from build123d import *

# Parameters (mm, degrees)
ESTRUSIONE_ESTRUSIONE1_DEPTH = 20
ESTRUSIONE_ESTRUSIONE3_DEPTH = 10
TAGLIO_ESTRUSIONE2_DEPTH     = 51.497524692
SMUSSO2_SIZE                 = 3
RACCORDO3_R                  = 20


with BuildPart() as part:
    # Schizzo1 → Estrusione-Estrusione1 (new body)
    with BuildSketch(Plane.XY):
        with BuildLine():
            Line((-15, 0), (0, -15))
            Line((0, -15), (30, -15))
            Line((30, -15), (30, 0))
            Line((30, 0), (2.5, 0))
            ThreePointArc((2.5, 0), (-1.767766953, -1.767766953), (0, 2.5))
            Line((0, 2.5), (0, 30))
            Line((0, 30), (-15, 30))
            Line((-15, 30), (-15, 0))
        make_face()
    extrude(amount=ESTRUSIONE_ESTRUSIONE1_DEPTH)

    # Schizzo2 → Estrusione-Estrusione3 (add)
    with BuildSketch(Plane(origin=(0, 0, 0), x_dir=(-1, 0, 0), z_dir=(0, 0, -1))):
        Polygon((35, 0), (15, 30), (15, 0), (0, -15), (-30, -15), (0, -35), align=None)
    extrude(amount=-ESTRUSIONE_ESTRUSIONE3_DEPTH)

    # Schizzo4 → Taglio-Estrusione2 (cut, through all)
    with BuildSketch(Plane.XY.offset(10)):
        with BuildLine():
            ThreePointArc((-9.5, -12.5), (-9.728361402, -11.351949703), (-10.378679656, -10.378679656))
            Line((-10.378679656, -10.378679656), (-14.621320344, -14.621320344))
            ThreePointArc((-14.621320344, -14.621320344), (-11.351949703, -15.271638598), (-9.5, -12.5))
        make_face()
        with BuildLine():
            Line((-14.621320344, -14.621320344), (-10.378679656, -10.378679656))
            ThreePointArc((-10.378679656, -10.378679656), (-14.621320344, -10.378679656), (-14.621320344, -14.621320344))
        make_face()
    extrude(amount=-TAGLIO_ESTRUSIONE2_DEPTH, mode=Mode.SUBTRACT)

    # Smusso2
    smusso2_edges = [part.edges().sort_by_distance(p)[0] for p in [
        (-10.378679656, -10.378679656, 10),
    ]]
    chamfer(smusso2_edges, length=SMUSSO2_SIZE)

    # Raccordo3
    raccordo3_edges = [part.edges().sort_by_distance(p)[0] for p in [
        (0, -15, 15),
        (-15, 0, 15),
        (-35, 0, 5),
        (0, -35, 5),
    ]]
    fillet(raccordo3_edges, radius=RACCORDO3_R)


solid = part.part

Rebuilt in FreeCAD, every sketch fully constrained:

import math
import FreeCAD as App
import Part
import Sketcher


def edges_at(feature, points):
    """Names of the edges that pass closest to the given points."""
    edges = feature.Shape.Edges
    near = lambda p: min(range(len(edges)), key=lambda i: edges[i].distToShape(Part.Vertex(*p))[0])
    return sorted({f"Edge{near(p) + 1}" for p in points})


def add_polygon(sketch, points):
    """Adds a closed chain of lines whose ends are joined by coincident constraints."""
    first, n = sketch.GeometryCount, len(points)
    for a, b in zip(points, points[1:] + points[:1]):
        sketch.addGeometry(Part.LineSegment(App.Vector(*a, 0), App.Vector(*b, 0)), False)
    for i in range(n):
        sketch.addConstraint(Sketcher.Constraint("Coincident", first + i, 2, first + (i + 1) % n, 1))

doc = App.newDocument("Part")
body = doc.addObject("PartDesign::Body", "Body")

sketch1 = body.newObject("Sketcher::SketchObject", "Sketch")
sketch1.AttachmentSupport = (doc.getObject("XY_Plane"), [""])
sketch1.MapMode = "FlatFace"
sketch1.addGeometry([
    Part.LineSegment(App.Vector(-15, 0, 0), App.Vector(0, -15, 0)),
    Part.LineSegment(App.Vector(0, -15, 0), App.Vector(30, -15, 0)),
    Part.LineSegment(App.Vector(30, -15, 0), App.Vector(30, 0, 0)),
    Part.LineSegment(App.Vector(30, 0, 0), App.Vector(2.5, 0, 0)),
    Part.ArcOfCircle(Part.Circle(App.Vector(0, 0, 0), App.Vector(0, 0, 1), 2.5), math.radians(90), math.radians(360)),
    Part.LineSegment(App.Vector(0, 2.5, 0), App.Vector(0, 30, 0)),
    Part.LineSegment(App.Vector(0, 30, 0), App.Vector(-15, 30, 0)),
    Part.LineSegment(App.Vector(-15, 30, 0), App.Vector(-15, 0, 0)),
], False)
sketch1.addConstraint([
    Sketcher.Constraint("Coincident", 0, 2, 1, 1),
    Sketcher.Constraint("Coincident", 1, 2, 2, 1),
    Sketcher.Constraint("Coincident", 2, 2, 3, 1),
    Sketcher.Constraint("Coincident", 3, 2, 4, 2),
    Sketcher.Constraint("Coincident", 4, 1, 5, 1),
    Sketcher.Constraint("Coincident", 5, 2, 6, 1),
    Sketcher.Constraint("Coincident", 6, 2, 7, 1),
    Sketcher.Constraint("Coincident", 7, 2, 0, 1),
    Sketcher.Constraint("Horizontal", 1),
    Sketcher.Constraint("Vertical", 2),
    Sketcher.Constraint("Horizontal", 3),
    Sketcher.Constraint("Vertical", 5),
    Sketcher.Constraint("Horizontal", 6),
    Sketcher.Constraint("Vertical", 7),
    Sketcher.Constraint("Coincident", 4, 3, -1, 1),
    Sketcher.Constraint("PointOnObject", 0, 2, -2),
    Sketcher.Constraint("PointOnObject", 2, 2, -1),
    Sketcher.Constraint("PointOnObject", 4, 1, -2),
    Sketcher.Constraint("PointOnObject", 7, 2, -1),
    Sketcher.Constraint("Equal", 6, 2),
    Sketcher.Constraint("Equal", 3, 5),
    Sketcher.Constraint("Radius", 4, 2.5),
    Sketcher.Constraint("DistanceX", 1, 1, 1, 2, 30.0),
    Sketcher.Constraint("DistanceX", 6, 2, 6, 1, 15.0),
])
pad1 = body.newObject("PartDesign::Pad", "Pad")
pad1.Profile = sketch1
pad1.Length = 20

sketch2 = body.newObject("Sketcher::SketchObject", "Sketch001")
sketch2.AttachmentSupport = (doc.getObject("XY_Plane"), [""])
sketch2.MapMode = "FlatFace"
add_polygon(sketch2, [(-35, 0), (-15, 30), (-15, 0), (0, -15), (30, -15), (0, -35)])
sketch2.addConstraint([
    Sketcher.Constraint("Vertical", 1),
    Sketcher.Constraint("Horizontal", 3),
    Sketcher.Constraint("PointOnObject", 1, 2, -1),
    Sketcher.Constraint("PointOnObject", 2, 2, -2),
    Sketcher.Constraint("PointOnObject", 4, 2, -2),
    Sketcher.Constraint("PointOnObject", 5, 2, -1),
    Sketcher.Constraint("Parallel", 2, 5),
    Sketcher.Constraint("Equal", 3, 1),
    Sketcher.Constraint("Equal", 0, 4),
    Sketcher.Constraint("DistanceX", 3, 1, 3, 2, 30.0),
    Sketcher.Constraint("DistanceX", 0, 2, -1, 1, 15.0),
    Sketcher.Constraint("DistanceY", 4, 2, -1, 1, 35.0),
])
pad2 = body.newObject("PartDesign::Pad", "Pad001")
pad2.Profile = sketch2
pad2.Length = 10

sketch3 = body.newObject("Sketcher::SketchObject", "Sketch002")
sketch3.AttachmentSupport = (doc.getObject("XY_Plane"), [""])
sketch3.MapMode = "FlatFace"
sketch3.AttachmentOffset = App.Placement(App.Vector(0, 0, 10), App.Rotation())
sketch3.addGeometry([
    Part.ArcOfCircle(Part.Circle(App.Vector(-12.5, -12.5, 0), App.Vector(0, 0, 1), 3), math.radians(0), math.radians(45)),
    Part.ArcOfCircle(Part.Circle(App.Vector(-12.5, -12.5, 0), App.Vector(0, 0, 1), 3), math.radians(45), math.radians(225)),
    Part.ArcOfCircle(Part.Circle(App.Vector(-12.5, -12.5, 0), App.Vector(0, 0, 1), 3), math.radians(-135), math.radians(0)),
], False)
sketch3.addConstraint([
    Sketcher.Constraint("Tangent", 0, 2, 1, 1),
    Sketcher.Constraint("Tangent", 1, 2, 2, 1),
    Sketcher.Constraint("Tangent", 2, 2, 0, 1),
    Sketcher.Constraint("Horizontal", 1, 3, 2, 2),
    Sketcher.Constraint("Radius", 0, 3.0),
    Sketcher.Constraint("DistanceX", 0, 3, -1, 1, 12.5),
    Sketcher.Constraint("DistanceY", 0, 3, -1, 1, 12.5),
    Sketcher.Constraint("DistanceX", 0, 2, -1, 1, 10.37868),
    Sketcher.Constraint("DistanceX", 1, 2, -1, 1, 14.62132),
])
pocket1 = body.newObject("PartDesign::Pocket", "Pocket")
pocket1.Profile = sketch3
pocket1.Type = "ThroughAll"
doc.recompute()

chamfer = body.newObject("PartDesign::Chamfer", "Chamfer")
chamfer.Base = (pocket1, edges_at(pocket1, [(-14.621, -10.379, 10)]))
chamfer.Size = 3
doc.recompute()

fillet = body.newObject("PartDesign::Fillet", "Fillet")
fillet.Base = (chamfer, edges_at(chamfer, [
    (0, -15, 15),
    (-15, 0, 15),
    (-35, 0, 5),
    (0, -35, 5),
]))
fillet.Radius = 20

doc.recompute()
